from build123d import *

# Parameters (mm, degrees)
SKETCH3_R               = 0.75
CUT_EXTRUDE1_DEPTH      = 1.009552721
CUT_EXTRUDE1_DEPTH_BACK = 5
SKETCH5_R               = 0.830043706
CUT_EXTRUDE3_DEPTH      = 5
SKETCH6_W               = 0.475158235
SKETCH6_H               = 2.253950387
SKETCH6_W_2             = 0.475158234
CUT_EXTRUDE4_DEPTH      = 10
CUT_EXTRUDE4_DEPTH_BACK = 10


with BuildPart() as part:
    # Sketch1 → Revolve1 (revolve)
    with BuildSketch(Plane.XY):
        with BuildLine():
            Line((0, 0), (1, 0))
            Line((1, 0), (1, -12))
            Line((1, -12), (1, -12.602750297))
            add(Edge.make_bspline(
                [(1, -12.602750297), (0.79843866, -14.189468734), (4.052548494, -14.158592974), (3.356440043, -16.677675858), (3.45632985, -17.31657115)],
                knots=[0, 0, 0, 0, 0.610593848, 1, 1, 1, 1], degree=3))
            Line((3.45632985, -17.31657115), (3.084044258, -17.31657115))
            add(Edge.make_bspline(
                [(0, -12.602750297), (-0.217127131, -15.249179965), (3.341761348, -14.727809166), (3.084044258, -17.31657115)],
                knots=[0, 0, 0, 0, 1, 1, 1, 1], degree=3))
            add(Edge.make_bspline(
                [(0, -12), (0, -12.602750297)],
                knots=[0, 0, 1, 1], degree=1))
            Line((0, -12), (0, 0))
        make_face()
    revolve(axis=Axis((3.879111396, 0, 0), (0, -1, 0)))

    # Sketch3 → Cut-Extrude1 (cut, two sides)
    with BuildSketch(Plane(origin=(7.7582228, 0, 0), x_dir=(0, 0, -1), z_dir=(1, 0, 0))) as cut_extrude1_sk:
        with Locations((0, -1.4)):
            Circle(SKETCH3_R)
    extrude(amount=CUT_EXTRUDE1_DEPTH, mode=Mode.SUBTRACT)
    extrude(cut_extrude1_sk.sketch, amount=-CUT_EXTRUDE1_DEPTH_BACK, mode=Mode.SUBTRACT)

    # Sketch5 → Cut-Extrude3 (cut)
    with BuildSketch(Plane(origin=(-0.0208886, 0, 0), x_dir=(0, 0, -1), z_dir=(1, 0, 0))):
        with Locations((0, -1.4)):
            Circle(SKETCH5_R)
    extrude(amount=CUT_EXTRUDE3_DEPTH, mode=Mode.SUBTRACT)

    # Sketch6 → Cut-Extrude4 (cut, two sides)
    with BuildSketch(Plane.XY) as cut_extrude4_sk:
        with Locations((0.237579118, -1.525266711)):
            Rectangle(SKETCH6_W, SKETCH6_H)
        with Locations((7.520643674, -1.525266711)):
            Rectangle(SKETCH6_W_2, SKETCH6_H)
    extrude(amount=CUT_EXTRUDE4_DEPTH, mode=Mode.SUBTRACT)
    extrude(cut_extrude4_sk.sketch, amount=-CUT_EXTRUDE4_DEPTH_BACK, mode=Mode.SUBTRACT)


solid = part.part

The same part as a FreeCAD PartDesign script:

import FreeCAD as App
import Part
import Sketcher
Q = App.Units.Quantity


def add_polygon(sketch, points):
    """Adds a closed chain of lines whose ends are joined by coincident constraints."""
    first, n = sketch.GeometryCount, len(points)
    for a, b in zip(points, points[1:] + points[:1]):
        sketch.addGeometry(Part.LineSegment(App.Vector(*a, 0), App.Vector(*b, 0)), False)
    for i in range(n):
        sketch.addConstraint(Sketcher.Constraint("Coincident", first + i, 2, first + (i + 1) % n, 1))

doc = App.newDocument("Part")
body = doc.addObject("PartDesign::Body", "Body")

sketch1 = body.newObject("Sketcher::SketchObject", "Sketch")
sketch1.AttachmentSupport = (doc.getObject("XY_Plane"), [""])
sketch1.MapMode = "FlatFace"
sketch1.addGeometry([
    Part.LineSegment(App.Vector(1, 0, 0), App.Vector(0, 0, 0)),
    Part.LineSegment(App.Vector(0, 0, 0), App.Vector(0, -12.60275, 0)),
    Part.BSplineCurve([App.Vector(0, -12.60275, 0), App.Vector(-0.217127, -15.24918, 0), App.Vector(3.341761, -14.727809, 0), App.Vector(3.084044, -17.316571, 0)], [4, 4], [0, 1], False, 3, [1, 1, 1, 1], False),
    Part.LineSegment(App.Vector(3.084044, -17.316571, 0), App.Vector(3.45633, -17.316571, 0)),
    Part.BSplineCurve([App.Vector(1, -12.60275, 0), App.Vector(0.798439, -14.189469, 0), App.Vector(4.052548, -14.158593, 0), App.Vector(3.35644, -16.677676, 0), App.Vector(3.45633, -17.316571, 0)], [4, 1, 4], [0, 0.610593848, 1], False, 3, [1, 1, 1, 1, 1], False),
    Part.LineSegment(App.Vector(1, -12.60275, 0), App.Vector(1, 0, 0)),
], False)
sketch1.addGeometry(Part.LineSegment(App.Vector(3.879111, 0, 0), App.Vector(3.879111, -17.316571, 0)), True)
sketch1.addConstraint([
    Sketcher.Constraint("Block", 2),
    Sketcher.Constraint("Block", 4),
    Sketcher.Constraint("Coincident", 0, 2, 1, 1),
    Sketcher.Constraint("Coincident", 1, 2, 2, 1),
    Sketcher.Constraint("Coincident", 2, 2, 3, 1),
    Sketcher.Constraint("Coincident", 3, 2, 4, 2),
    Sketcher.Constraint("Coincident", 4, 1, 5, 1),
    Sketcher.Constraint("Coincident", 5, 2, 0, 1),
    Sketcher.Constraint("Horizontal", 0),
    Sketcher.Constraint("Vertical", 1),
    Sketcher.Constraint("Vertical", 5),
    Sketcher.Constraint("Vertical", 6),
    Sketcher.Constraint("PointOnObject", 5, 2, -1),
    Sketcher.Constraint("PointOnObject", 6, 1, -1),
    Sketcher.Constraint("Horizontal", 3, 2, 6, 2),
    Sketcher.Constraint("DistanceX", -1, 1, 6, 1, Q("3.879111 mm")),
])
revolution = body.newObject("PartDesign::Revolution", "Revolution")
revolution.Profile = sketch1
revolution.ReferenceAxis = (sketch1, ["Axis0"])
revolution.Angle = 360

sketch2 = body.newObject("Sketcher::SketchObject", "Sketch001")
sketch2.AttachmentSupport = (doc.getObject("YZ_Plane"), [""])
sketch2.MapMode = "FlatFace"
sketch2.AttachmentOffset = App.Placement(App.Vector(0, 0, 7.758223), App.Rotation())
sketch2.addGeometry(Part.Circle(App.Vector(-1.4, 0, 0), App.Vector(0, 0, 1), 0.8), False)
sketch2.addConstraint([
    Sketcher.Constraint("PointOnObject", 0, 3, -1),
    Sketcher.Constraint("Diameter", 0, Q("1.5 mm")),
    Sketcher.Constraint("DistanceX", 0, 3, -1, 1, Q("1.4 mm")),
])
pocket1 = body.newObject("PartDesign::Pocket", "Pocket")
pocket1.Profile = sketch2
pocket1.Type = "TwoLengths"
pocket1.Length = 1.009553
pocket1.Length2 = 5
pocket1.Reversed = True

sketch3 = body.newObject("Sketcher::SketchObject", "Sketch002")
sketch3.AttachmentSupport = (doc.getObject("YZ_Plane"), [""])
sketch3.MapMode = "FlatFace"
sketch3.AttachmentOffset = App.Placement(App.Vector(0, 0, -0.020889), App.Rotation())
sketch3.addGeometry(Part.Circle(App.Vector(-1.4, 0, 0), App.Vector(0, 0, 1), 0.8), False)
sketch3.addConstraint([
    Sketcher.Constraint("PointOnObject", 0, 3, -1),
    Sketcher.Constraint("DistanceX", 0, 3, -1, 1, Q("1.4 mm")),
    Sketcher.Constraint("Diameter", 0, Q("1.660087 mm")),
])
pocket2 = body.newObject("PartDesign::Pocket", "Pocket001")
pocket2.Profile = sketch3
pocket2.Length = 5
pocket2.Reversed = True

sketch4 = body.newObject("Sketcher::SketchObject", "Sketch003")
sketch4.AttachmentSupport = (doc.getObject("XY_Plane"), [""])
sketch4.MapMode = "FlatFace"
add_polygon(sketch4, [(0, -0.4), (0, -2.65), (0.48, -2.65), (0.48, -0.4)])
add_polygon(sketch4, [(7.28, -0.4), (7.28, -2.65), (7.76, -2.65), (7.76, -0.4)])
sketch4.addConstraint([
    Sketcher.Constraint("Vertical", 0),
    Sketcher.Constraint("Horizontal", 1),
    Sketcher.Constraint("Vertical", 2),
    Sketcher.Constraint("Horizontal", 3),
    Sketcher.Constraint("Vertical", 4),
    Sketcher.Constraint("Horizontal", 5),
    Sketcher.Constraint("Vertical", 6),
    Sketcher.Constraint("Horizontal", 7),
    Sketcher.Constraint("PointOnObject", 0, 2, -2),
    Sketcher.Constraint("Horizontal", 1, 2, 4, 2),
    Sketcher.Constraint("Horizontal", 3, 2, 6, 2),
    Sketcher.Constraint("Equal", 3, 5),
    Sketcher.Constraint("DistanceX", 1, 1, 1, 2, Q("0.475158 mm")),
    Sketcher.Constraint("DistanceY", 0, 2, 0, 1, Q("2.25395 mm")),
    Sketcher.Constraint("DistanceY", 0, 2, -1, 1, Q("2.652242 mm")),
    Sketcher.Constraint("DistanceX", -1, 1, 4, 2, Q("7.283065 mm")),
])
pocket3 = body.newObject("PartDesign::Pocket", "Pocket002")
pocket3.Profile = sketch4
pocket3.Type = "ThroughAll"
pocket3.Midplane = True

doc.recompute()
